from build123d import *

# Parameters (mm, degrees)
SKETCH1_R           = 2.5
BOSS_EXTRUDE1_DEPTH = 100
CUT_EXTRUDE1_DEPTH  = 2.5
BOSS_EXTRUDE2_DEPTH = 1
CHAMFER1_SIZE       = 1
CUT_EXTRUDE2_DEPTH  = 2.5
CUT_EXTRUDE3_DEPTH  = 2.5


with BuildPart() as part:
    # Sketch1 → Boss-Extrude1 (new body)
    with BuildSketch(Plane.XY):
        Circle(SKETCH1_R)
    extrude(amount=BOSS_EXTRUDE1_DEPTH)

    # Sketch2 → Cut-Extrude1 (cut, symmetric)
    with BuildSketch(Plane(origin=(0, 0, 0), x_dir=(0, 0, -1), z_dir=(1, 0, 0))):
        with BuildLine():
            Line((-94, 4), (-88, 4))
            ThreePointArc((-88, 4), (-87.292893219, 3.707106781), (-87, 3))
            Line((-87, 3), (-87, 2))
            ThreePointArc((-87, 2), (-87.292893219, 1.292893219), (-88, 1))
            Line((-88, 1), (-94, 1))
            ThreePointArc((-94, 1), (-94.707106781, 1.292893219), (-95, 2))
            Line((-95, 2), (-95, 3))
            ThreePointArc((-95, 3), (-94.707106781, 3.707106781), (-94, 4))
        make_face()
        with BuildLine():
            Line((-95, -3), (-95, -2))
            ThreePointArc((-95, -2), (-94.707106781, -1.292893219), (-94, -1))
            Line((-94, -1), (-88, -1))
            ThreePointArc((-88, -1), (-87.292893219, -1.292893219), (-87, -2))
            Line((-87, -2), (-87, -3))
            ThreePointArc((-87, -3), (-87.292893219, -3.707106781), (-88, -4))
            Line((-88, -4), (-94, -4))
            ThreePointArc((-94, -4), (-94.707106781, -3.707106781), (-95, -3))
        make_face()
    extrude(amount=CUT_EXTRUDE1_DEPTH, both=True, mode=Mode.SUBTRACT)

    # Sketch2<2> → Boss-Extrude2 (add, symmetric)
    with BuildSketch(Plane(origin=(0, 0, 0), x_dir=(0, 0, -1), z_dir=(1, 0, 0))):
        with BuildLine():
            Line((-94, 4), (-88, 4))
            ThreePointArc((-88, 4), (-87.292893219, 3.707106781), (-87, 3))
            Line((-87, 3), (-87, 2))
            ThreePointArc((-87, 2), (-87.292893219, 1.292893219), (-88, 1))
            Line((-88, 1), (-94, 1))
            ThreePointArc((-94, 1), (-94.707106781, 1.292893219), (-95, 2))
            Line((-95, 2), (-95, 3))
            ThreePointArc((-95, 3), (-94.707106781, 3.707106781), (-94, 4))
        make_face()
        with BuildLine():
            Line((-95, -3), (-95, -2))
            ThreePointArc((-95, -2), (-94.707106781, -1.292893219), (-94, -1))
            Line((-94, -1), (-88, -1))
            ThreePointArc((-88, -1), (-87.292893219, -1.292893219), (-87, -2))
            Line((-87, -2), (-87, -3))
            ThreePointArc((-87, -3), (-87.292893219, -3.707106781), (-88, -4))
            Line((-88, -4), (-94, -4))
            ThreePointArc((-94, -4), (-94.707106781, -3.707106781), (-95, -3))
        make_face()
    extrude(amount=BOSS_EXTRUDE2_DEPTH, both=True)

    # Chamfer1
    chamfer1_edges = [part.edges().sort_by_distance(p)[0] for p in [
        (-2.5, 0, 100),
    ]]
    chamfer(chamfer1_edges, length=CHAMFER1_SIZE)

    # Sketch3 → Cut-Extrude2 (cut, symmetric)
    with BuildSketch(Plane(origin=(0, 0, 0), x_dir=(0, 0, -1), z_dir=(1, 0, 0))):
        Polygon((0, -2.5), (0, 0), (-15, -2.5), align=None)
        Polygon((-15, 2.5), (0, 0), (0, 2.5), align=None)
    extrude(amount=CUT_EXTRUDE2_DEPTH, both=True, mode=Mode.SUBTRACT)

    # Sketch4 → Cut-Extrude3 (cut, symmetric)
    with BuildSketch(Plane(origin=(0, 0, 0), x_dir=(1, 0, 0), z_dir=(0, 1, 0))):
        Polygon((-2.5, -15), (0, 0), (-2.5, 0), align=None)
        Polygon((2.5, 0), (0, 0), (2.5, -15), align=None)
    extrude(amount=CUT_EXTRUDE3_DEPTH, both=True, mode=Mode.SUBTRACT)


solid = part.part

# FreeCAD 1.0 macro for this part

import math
import FreeCAD as App
import Part
import Sketcher

V = App.Vector


def edges_at(feature, points):
    """Names of the edges that pass closest to the given points."""
    edges = feature.Shape.Edges
    near = lambda p: min(range(len(edges)), key=lambda i: edges[i].distToShape(Part.Vertex(*p))[0])
    return sorted({f"Edge{near(p) + 1}" for p in points})


def add_polygon(sketch, points):
    """Adds a closed chain of lines whose ends are joined by coincident constraints."""
    first, n = sketch.GeometryCount, len(points)
    for a, b in zip(points, points[1:] + points[:1]):
        sketch.addGeometry(Part.LineSegment(App.Vector(*a, 0), App.Vector(*b, 0)), False)
    for i in range(n):
        sketch.addConstraint(Sketcher.Constraint("Coincident", first + i, 2, first + (i + 1) % n, 1))

doc = App.newDocument("Part")
params = doc.addObject("Spreadsheet::Sheet", "Params")
for row, (alias, value) in enumerate([
    ("sketch1_diameter", "5 mm"),
    ("pad1_length", "100 mm"),
    ("sketch2_radius", "1 mm"),
    ("sketch2_width", "1 mm"),
    ("sketch2_height", "6 mm"),
    ("pocket1_length", "5 mm"),
    ("sketch3_radius", "1 mm"),
    ("sketch3_width", "1 mm"),
    ("sketch3_height", "6 mm"),
    ("pad2_length", "2 mm"),
    ("chamfer_size", "1 mm"),
    ("sketch4_height", "15 mm"),
    ("sketch4_width", "2.5 mm"),
    ("pocket2_length", "5 mm"),
    ("sketch5_height", "15 mm"),
    ("sketch5_width", "2.5 mm"),
    ("pocket3_length", "5 mm"),
], start=1):
    params.set(f"A{row}", alias)
    params.set(f"B{row}", "=" + value)
    params.setAlias(f"B{row}", alias)

body = doc.addObject("PartDesign::Body", "Body")

# Sketch on XY plane
sketch1 = body.newObject("Sketcher::SketchObject", "Sketch")
sketch1.AttachmentSupport = (doc.getObject("XY_Plane"), [""])
sketch1.MapMode = "FlatFace"
sketch1.addGeometry(Part.Circle(V(0, 0, 0), V(0, 0, 1), 2.5), False)
sketch1.addConstraint([
    Sketcher.Constraint("Coincident", 0, 3, -1, 1),
    Sketcher.Constraint("Diameter", 0, 5.0),
])
sketch1.setExpression("Constraints[1]", "Params.sketch1_diameter")
pad1 = body.newObject("PartDesign::Pad", "Pad")
pad1.Profile = sketch1
pad1.setExpression("Length", "Params.pad1_length")

# Sketch on YZ plane
sketch2 = body.newObject("Sketcher::SketchObject", "Sketch001")
sketch2.AttachmentSupport = (doc.getObject("YZ_Plane"), [""])
sketch2.MapMode = "FlatFace"
sketch2.addGeometry([
    Part.LineSegment(V(4, 88, 0), V(4, 94, 0)),  # 0
    Part.ArcOfCircle(Part.Circle(V(3, 94, 0), V(0, 0, 1), 1), math.radians(0), math.radians(90)),  # 1
    Part.LineSegment(V(3, 95, 0), V(2, 95, 0)),  # 2
    Part.ArcOfCircle(Part.Circle(V(2, 94, 0), V(0, 0, 1), 1), math.radians(90), math.radians(180)),  # 3
    Part.LineSegment(V(1, 94, 0), V(1, 88, 0)),  # 4
    Part.ArcOfCircle(Part.Circle(V(2, 88, 0), V(0, 0, 1), 1), math.radians(-180), math.radians(-90)),  # 5
    Part.LineSegment(V(2, 87, 0), V(3, 87, 0)),  # 6
    Part.ArcOfCircle(Part.Circle(V(3, 88, 0), V(0, 0, 1), 1), math.radians(-90), math.radians(0)),  # 7
    Part.LineSegment(V(-2, 95, 0), V(-3, 95, 0)),  # 8
    Part.ArcOfCircle(Part.Circle(V(-3, 94, 0), V(0, 0, 1), 1), math.radians(90), math.radians(180)),  # 9
    Part.LineSegment(V(-4, 94, 0), V(-4, 88, 0)),  # 10
    Part.ArcOfCircle(Part.Circle(V(-3, 88, 0), V(0, 0, 1), 1), math.radians(-180), math.radians(-90)),  # 11
    Part.LineSegment(V(-3, 87, 0), V(-2, 87, 0)),  # 12
    Part.ArcOfCircle(Part.Circle(V(-2, 88, 0), V(0, 0, 1), 1), math.radians(-90), math.radians(0)),  # 13
    Part.LineSegment(V(-1, 88, 0), V(-1, 94, 0)),  # 14
    Part.ArcOfCircle(Part.Circle(V(-2, 94, 0), V(0, 0, 1), 1), math.radians(0), math.radians(90)),  # 15
], False)
sketch2.addConstraint([
    Sketcher.Constraint("Tangent", 0, 2, 1, 1),
    Sketcher.Constraint("Tangent", 1, 2, 2, 1),
    Sketcher.Constraint("Tangent", 2, 2, 3, 1),
    Sketcher.Constraint("Tangent", 3, 2, 4, 1),
    Sketcher.Constraint("Tangent", 4, 2, 5, 1),
    Sketcher.Constraint("Tangent", 5, 2, 6, 1),
    Sketcher.Constraint("Tangent", 6, 2, 7, 1),
    Sketcher.Constraint("Tangent", 7, 2, 0, 1),
    Sketcher.Constraint("Tangent", 8, 2, 9, 1),
    Sketcher.Constraint("Tangent", 9, 2, 10, 1),
    Sketcher.Constraint("Tangent", 10, 2, 11, 1),
    Sketcher.Constraint("Tangent", 11, 2, 12, 1),
    Sketcher.Constraint("Tangent", 12, 2, 13, 1),
    Sketcher.Constraint("Tangent", 13, 2, 14, 1),
    Sketcher.Constraint("Tangent", 14, 2, 15, 1),
    Sketcher.Constraint("Tangent", 15, 2, 8, 1),
    Sketcher.Constraint("Vertical", 0),
    Sketcher.Constraint("Horizontal", 2),
    Sketcher.Constraint("Vertical", 4),
    Sketcher.Constraint("Horizontal", 6),
    Sketcher.Constraint("Horizontal", 8),
    Sketcher.Constraint("Vertical", 10),
    Sketcher.Constraint("Horizontal", 12),
    Sketcher.Constraint("Vertical", 14),
    Sketcher.Constraint("Equal", 1, 3),
    Sketcher.Constraint("Equal", 3, 5),
    Sketcher.Constraint("Equal", 5, 7),
    Sketcher.Constraint("Equal", 7, 9),
    Sketcher.Constraint("Equal", 9, 11),
    Sketcher.Constraint("Equal", 11, 13),
    Sketcher.Constraint("Equal", 13, 15),
    Sketcher.Constraint("Symmetric", 1, 3, 9, 3, -2),
    Sketcher.Constraint("Symmetric", 5, 3, 13, 3, -2),
    Sketcher.Constraint("Radius", 1, 1.0),
    Sketcher.Constraint("DistanceX", 2, 2, 2, 1, 1.0),
    Sketcher.Constraint("DistanceY", 0, 1, 0, 2, 6.0),
    Sketcher.Constraint("DistanceX", -1, 1, 1, 3, 3.0),
    Sketcher.Constraint("DistanceY", -1, 1, 1, 3, 94.0),
])
sketch2.setExpression("Constraints[33]", "Params.sketch2_radius")
sketch2.setExpression("Constraints[34]", "Params.sketch2_width")
sketch2.setExpression("Constraints[35]", "Params.sketch2_height")
pocket1 = body.newObject("PartDesign::Pocket", "Pocket")
pocket1.Profile = sketch2
pocket1.setExpression("Length", "Params.pocket1_length")
pocket1.Midplane = True

# Sketch on YZ plane
sketch3 = body.newObject("Sketcher::SketchObject", "Sketch002")
sketch3.AttachmentSupport = (doc.getObject("YZ_Plane"), [""])
sketch3.MapMode = "FlatFace"
sketch3.addGeometry([
    Part.LineSegment(V(4, 88, 0), V(4, 94, 0)),  # 0
    Part.ArcOfCircle(Part.Circle(V(3, 94, 0), V(0, 0, 1), 1), math.radians(0), math.radians(90)),  # 1
    Part.LineSegment(V(3, 95, 0), V(2, 95, 0)),  # 2
    Part.ArcOfCircle(Part.Circle(V(2, 94, 0), V(0, 0, 1), 1), math.radians(90), math.radians(180)),  # 3
    Part.LineSegment(V(1, 94, 0), V(1, 88, 0)),  # 4
    Part.ArcOfCircle(Part.Circle(V(2, 88, 0), V(0, 0, 1), 1), math.radians(-180), math.radians(-90)),  # 5
    Part.LineSegment(V(2, 87, 0), V(3, 87, 0)),  # 6
    Part.ArcOfCircle(Part.Circle(V(3, 88, 0), V(0, 0, 1), 1), math.radians(-90), math.radians(0)),  # 7
    Part.LineSegment(V(-2, 95, 0), V(-3, 95, 0)),  # 8
    Part.ArcOfCircle(Part.Circle(V(-3, 94, 0), V(0, 0, 1), 1), math.radians(90), math.radians(180)),  # 9
    Part.LineSegment(V(-4, 94, 0), V(-4, 88, 0)),  # 10
    Part.ArcOfCircle(Part.Circle(V(-3, 88, 0), V(0, 0, 1), 1), math.radians(-180), math.radians(-90)),  # 11
    Part.LineSegment(V(-3, 87, 0), V(-2, 87, 0)),  # 12
    Part.ArcOfCircle(Part.Circle(V(-2, 88, 0), V(0, 0, 1), 1), math.radians(-90), math.radians(0)),  # 13
    Part.LineSegment(V(-1, 88, 0), V(-1, 94, 0)),  # 14
    Part.ArcOfCircle(Part.Circle(V(-2, 94, 0), V(0, 0, 1), 1), math.radians(0), math.radians(90)),  # 15
], False)
sketch3.addConstraint([
    Sketcher.Constraint("Tangent", 0, 2, 1, 1),
    Sketcher.Constraint("Tangent", 1, 2, 2, 1),
    Sketcher.Constraint("Tangent", 2, 2, 3, 1),
    Sketcher.Constraint("Tangent", 3, 2, 4, 1),
    Sketcher.Constraint("Tangent", 4, 2, 5, 1),
    Sketcher.Constraint("Tangent", 5, 2, 6, 1),
    Sketcher.Constraint("Tangent", 6, 2, 7, 1),
    Sketcher.Constraint("Tangent", 7, 2, 0, 1),
    Sketcher.Constraint("Tangent", 8, 2, 9, 1),
    Sketcher.Constraint("Tangent", 9, 2, 10, 1),
    Sketcher.Constraint("Tangent", 10, 2, 11, 1),
    Sketcher.Constraint("Tangent", 11, 2, 12, 1),
    Sketcher.Constraint("Tangent", 12, 2, 13, 1),
    Sketcher.Constraint("Tangent", 13, 2, 14, 1),
    Sketcher.Constraint("Tangent", 14, 2, 15, 1),
    Sketcher.Constraint("Tangent", 15, 2, 8, 1),
    Sketcher.Constraint("Vertical", 0),
    Sketcher.Constraint("Horizontal", 2),
    Sketcher.Constraint("Vertical", 4),
    Sketcher.Constraint("Horizontal", 6),
    Sketcher.Constraint("Horizontal", 8),
    Sketcher.Constraint("Vertical", 10),
    Sketcher.Constraint("Horizontal", 12),
    Sketcher.Constraint("Vertical", 14),
    Sketcher.Constraint("Equal", 1, 3),
    Sketcher.Constraint("Equal", 3, 5),
    Sketcher.Constraint("Equal", 5, 7),
    Sketcher.Constraint("Equal", 7, 9),
    Sketcher.Constraint("Equal", 9, 11),
    Sketcher.Constraint("Equal", 11, 13),
    Sketcher.Constraint("Equal", 13, 15),
    Sketcher.Constraint("Symmetric", 1, 3, 9, 3, -2),
    Sketcher.Constraint("Symmetric", 5, 3, 13, 3, -2),
    Sketcher.Constraint("Radius", 1, 1.0),
    Sketcher.Constraint("DistanceX", 2, 2, 2, 1, 1.0),
    Sketcher.Constraint("DistanceY", 0, 1, 0, 2, 6.0),
    Sketcher.Constraint("DistanceX", -1, 1, 1, 3, 3.0),
    Sketcher.Constraint("DistanceY", -1, 1, 1, 3, 94.0),
])
sketch3.setExpression("Constraints[33]", "Params.sketch3_radius")
sketch3.setExpression("Constraints[34]", "Params.sketch3_width")
sketch3.setExpression("Constraints[35]", "Params.sketch3_height")
pad2 = body.newObject("PartDesign::Pad", "Pad001")
pad2.Profile = sketch3
pad2.setExpression("Length", "Params.pad2_length")
pad2.Midplane = True
doc.recompute()

chamfer = body.newObject("PartDesign::Chamfer", "Chamfer")
chamfer.Base = (pad2, edges_at(pad2, [(-2.5, 0, 100)]))
chamfer.setExpression("Size", "Params.chamfer_size")

# Sketch on YZ plane
sketch4 = body.newObject("Sketcher::SketchObject", "Sketch003")
sketch4.AttachmentSupport = (doc.getObject("YZ_Plane"), [""])
sketch4.MapMode = "FlatFace"
add_polygon(sketch4, [(-2.5, 0), (0, 0), (-2.5, 15)])  # lines 0-2
add_polygon(sketch4, [(2.5, 15), (0, 0), (2.5, 0)])  # lines 3-5
sketch4.addConstraint([
    Sketcher.Constraint("Horizontal", 0),
    Sketcher.Constraint("Vertical", 2),
    Sketcher.Constraint("Horizontal", 4),
    Sketcher.Constraint("Vertical", 5),
    Sketcher.Constraint("Coincident", 0, 2, -1, 1),
    Sketcher.Constraint("Coincident", 3, 2, -1, 1),
    Sketcher.Constraint("Symmetric", 1, 2, 5, 2, -2),
    Sketcher.Constraint("DistanceY", 2, 2, 2, 1, 15.0),
    Sketcher.Constraint("DistanceX", 0, 1, 0, 2, 2.5),
])
sketch4.setExpression("Constraints[13]", "Params.sketch4_height")
sketch4.setExpression("Constraints[14]", "Params.sketch4_width")
pocket2 = body.newObject("PartDesign::Pocket", "Pocket001")
pocket2.Profile = sketch4
pocket2.setExpression("Length", "Params.pocket2_length")
pocket2.Midplane = True

# Sketch on XZ plane
sketch5 = body.newObject("Sketcher::SketchObject", "Sketch004")
sketch5.AttachmentSupport = (doc.getObject("XZ_Plane"), [""])
sketch5.MapMode = "FlatFace"
add_polygon(sketch5, [(-2.5, 15), (0, 0), (-2.5, 0)])  # lines 0-2
add_polygon(sketch5, [(2.5, 0), (0, 0), (2.5, 15)])  # lines 3-5
sketch5.addConstraint([
    Sketcher.Constraint("Horizontal", 1),
    Sketcher.Constraint("Vertical", 2),
    Sketcher.Constraint("Horizontal", 3),
    Sketcher.Constraint("Vertical", 5),
    Sketcher.Constraint("Coincident", 0, 2, -1, 1),
    Sketcher.Constraint("Coincident", 3, 2, -1, 1),
    Sketcher.Constraint("Symmetric", 2, 2, 4, 2, -2),
    Sketcher.Constraint("DistanceY", 2, 1, 2, 2, 15.0),
    Sketcher.Constraint("DistanceX", 1, 2, 1, 1, 2.5),
])
sketch5.setExpression("Constraints[13]", "Params.sketch5_height")
sketch5.setExpression("Constraints[14]", "Params.sketch5_width")
pocket3 = body.newObject("PartDesign::Pocket", "Pocket002")
pocket3.Profile = sketch5
pocket3.setExpression("Length", "Params.pocket3_length")
pocket3.Midplane = True

doc.recompute()
